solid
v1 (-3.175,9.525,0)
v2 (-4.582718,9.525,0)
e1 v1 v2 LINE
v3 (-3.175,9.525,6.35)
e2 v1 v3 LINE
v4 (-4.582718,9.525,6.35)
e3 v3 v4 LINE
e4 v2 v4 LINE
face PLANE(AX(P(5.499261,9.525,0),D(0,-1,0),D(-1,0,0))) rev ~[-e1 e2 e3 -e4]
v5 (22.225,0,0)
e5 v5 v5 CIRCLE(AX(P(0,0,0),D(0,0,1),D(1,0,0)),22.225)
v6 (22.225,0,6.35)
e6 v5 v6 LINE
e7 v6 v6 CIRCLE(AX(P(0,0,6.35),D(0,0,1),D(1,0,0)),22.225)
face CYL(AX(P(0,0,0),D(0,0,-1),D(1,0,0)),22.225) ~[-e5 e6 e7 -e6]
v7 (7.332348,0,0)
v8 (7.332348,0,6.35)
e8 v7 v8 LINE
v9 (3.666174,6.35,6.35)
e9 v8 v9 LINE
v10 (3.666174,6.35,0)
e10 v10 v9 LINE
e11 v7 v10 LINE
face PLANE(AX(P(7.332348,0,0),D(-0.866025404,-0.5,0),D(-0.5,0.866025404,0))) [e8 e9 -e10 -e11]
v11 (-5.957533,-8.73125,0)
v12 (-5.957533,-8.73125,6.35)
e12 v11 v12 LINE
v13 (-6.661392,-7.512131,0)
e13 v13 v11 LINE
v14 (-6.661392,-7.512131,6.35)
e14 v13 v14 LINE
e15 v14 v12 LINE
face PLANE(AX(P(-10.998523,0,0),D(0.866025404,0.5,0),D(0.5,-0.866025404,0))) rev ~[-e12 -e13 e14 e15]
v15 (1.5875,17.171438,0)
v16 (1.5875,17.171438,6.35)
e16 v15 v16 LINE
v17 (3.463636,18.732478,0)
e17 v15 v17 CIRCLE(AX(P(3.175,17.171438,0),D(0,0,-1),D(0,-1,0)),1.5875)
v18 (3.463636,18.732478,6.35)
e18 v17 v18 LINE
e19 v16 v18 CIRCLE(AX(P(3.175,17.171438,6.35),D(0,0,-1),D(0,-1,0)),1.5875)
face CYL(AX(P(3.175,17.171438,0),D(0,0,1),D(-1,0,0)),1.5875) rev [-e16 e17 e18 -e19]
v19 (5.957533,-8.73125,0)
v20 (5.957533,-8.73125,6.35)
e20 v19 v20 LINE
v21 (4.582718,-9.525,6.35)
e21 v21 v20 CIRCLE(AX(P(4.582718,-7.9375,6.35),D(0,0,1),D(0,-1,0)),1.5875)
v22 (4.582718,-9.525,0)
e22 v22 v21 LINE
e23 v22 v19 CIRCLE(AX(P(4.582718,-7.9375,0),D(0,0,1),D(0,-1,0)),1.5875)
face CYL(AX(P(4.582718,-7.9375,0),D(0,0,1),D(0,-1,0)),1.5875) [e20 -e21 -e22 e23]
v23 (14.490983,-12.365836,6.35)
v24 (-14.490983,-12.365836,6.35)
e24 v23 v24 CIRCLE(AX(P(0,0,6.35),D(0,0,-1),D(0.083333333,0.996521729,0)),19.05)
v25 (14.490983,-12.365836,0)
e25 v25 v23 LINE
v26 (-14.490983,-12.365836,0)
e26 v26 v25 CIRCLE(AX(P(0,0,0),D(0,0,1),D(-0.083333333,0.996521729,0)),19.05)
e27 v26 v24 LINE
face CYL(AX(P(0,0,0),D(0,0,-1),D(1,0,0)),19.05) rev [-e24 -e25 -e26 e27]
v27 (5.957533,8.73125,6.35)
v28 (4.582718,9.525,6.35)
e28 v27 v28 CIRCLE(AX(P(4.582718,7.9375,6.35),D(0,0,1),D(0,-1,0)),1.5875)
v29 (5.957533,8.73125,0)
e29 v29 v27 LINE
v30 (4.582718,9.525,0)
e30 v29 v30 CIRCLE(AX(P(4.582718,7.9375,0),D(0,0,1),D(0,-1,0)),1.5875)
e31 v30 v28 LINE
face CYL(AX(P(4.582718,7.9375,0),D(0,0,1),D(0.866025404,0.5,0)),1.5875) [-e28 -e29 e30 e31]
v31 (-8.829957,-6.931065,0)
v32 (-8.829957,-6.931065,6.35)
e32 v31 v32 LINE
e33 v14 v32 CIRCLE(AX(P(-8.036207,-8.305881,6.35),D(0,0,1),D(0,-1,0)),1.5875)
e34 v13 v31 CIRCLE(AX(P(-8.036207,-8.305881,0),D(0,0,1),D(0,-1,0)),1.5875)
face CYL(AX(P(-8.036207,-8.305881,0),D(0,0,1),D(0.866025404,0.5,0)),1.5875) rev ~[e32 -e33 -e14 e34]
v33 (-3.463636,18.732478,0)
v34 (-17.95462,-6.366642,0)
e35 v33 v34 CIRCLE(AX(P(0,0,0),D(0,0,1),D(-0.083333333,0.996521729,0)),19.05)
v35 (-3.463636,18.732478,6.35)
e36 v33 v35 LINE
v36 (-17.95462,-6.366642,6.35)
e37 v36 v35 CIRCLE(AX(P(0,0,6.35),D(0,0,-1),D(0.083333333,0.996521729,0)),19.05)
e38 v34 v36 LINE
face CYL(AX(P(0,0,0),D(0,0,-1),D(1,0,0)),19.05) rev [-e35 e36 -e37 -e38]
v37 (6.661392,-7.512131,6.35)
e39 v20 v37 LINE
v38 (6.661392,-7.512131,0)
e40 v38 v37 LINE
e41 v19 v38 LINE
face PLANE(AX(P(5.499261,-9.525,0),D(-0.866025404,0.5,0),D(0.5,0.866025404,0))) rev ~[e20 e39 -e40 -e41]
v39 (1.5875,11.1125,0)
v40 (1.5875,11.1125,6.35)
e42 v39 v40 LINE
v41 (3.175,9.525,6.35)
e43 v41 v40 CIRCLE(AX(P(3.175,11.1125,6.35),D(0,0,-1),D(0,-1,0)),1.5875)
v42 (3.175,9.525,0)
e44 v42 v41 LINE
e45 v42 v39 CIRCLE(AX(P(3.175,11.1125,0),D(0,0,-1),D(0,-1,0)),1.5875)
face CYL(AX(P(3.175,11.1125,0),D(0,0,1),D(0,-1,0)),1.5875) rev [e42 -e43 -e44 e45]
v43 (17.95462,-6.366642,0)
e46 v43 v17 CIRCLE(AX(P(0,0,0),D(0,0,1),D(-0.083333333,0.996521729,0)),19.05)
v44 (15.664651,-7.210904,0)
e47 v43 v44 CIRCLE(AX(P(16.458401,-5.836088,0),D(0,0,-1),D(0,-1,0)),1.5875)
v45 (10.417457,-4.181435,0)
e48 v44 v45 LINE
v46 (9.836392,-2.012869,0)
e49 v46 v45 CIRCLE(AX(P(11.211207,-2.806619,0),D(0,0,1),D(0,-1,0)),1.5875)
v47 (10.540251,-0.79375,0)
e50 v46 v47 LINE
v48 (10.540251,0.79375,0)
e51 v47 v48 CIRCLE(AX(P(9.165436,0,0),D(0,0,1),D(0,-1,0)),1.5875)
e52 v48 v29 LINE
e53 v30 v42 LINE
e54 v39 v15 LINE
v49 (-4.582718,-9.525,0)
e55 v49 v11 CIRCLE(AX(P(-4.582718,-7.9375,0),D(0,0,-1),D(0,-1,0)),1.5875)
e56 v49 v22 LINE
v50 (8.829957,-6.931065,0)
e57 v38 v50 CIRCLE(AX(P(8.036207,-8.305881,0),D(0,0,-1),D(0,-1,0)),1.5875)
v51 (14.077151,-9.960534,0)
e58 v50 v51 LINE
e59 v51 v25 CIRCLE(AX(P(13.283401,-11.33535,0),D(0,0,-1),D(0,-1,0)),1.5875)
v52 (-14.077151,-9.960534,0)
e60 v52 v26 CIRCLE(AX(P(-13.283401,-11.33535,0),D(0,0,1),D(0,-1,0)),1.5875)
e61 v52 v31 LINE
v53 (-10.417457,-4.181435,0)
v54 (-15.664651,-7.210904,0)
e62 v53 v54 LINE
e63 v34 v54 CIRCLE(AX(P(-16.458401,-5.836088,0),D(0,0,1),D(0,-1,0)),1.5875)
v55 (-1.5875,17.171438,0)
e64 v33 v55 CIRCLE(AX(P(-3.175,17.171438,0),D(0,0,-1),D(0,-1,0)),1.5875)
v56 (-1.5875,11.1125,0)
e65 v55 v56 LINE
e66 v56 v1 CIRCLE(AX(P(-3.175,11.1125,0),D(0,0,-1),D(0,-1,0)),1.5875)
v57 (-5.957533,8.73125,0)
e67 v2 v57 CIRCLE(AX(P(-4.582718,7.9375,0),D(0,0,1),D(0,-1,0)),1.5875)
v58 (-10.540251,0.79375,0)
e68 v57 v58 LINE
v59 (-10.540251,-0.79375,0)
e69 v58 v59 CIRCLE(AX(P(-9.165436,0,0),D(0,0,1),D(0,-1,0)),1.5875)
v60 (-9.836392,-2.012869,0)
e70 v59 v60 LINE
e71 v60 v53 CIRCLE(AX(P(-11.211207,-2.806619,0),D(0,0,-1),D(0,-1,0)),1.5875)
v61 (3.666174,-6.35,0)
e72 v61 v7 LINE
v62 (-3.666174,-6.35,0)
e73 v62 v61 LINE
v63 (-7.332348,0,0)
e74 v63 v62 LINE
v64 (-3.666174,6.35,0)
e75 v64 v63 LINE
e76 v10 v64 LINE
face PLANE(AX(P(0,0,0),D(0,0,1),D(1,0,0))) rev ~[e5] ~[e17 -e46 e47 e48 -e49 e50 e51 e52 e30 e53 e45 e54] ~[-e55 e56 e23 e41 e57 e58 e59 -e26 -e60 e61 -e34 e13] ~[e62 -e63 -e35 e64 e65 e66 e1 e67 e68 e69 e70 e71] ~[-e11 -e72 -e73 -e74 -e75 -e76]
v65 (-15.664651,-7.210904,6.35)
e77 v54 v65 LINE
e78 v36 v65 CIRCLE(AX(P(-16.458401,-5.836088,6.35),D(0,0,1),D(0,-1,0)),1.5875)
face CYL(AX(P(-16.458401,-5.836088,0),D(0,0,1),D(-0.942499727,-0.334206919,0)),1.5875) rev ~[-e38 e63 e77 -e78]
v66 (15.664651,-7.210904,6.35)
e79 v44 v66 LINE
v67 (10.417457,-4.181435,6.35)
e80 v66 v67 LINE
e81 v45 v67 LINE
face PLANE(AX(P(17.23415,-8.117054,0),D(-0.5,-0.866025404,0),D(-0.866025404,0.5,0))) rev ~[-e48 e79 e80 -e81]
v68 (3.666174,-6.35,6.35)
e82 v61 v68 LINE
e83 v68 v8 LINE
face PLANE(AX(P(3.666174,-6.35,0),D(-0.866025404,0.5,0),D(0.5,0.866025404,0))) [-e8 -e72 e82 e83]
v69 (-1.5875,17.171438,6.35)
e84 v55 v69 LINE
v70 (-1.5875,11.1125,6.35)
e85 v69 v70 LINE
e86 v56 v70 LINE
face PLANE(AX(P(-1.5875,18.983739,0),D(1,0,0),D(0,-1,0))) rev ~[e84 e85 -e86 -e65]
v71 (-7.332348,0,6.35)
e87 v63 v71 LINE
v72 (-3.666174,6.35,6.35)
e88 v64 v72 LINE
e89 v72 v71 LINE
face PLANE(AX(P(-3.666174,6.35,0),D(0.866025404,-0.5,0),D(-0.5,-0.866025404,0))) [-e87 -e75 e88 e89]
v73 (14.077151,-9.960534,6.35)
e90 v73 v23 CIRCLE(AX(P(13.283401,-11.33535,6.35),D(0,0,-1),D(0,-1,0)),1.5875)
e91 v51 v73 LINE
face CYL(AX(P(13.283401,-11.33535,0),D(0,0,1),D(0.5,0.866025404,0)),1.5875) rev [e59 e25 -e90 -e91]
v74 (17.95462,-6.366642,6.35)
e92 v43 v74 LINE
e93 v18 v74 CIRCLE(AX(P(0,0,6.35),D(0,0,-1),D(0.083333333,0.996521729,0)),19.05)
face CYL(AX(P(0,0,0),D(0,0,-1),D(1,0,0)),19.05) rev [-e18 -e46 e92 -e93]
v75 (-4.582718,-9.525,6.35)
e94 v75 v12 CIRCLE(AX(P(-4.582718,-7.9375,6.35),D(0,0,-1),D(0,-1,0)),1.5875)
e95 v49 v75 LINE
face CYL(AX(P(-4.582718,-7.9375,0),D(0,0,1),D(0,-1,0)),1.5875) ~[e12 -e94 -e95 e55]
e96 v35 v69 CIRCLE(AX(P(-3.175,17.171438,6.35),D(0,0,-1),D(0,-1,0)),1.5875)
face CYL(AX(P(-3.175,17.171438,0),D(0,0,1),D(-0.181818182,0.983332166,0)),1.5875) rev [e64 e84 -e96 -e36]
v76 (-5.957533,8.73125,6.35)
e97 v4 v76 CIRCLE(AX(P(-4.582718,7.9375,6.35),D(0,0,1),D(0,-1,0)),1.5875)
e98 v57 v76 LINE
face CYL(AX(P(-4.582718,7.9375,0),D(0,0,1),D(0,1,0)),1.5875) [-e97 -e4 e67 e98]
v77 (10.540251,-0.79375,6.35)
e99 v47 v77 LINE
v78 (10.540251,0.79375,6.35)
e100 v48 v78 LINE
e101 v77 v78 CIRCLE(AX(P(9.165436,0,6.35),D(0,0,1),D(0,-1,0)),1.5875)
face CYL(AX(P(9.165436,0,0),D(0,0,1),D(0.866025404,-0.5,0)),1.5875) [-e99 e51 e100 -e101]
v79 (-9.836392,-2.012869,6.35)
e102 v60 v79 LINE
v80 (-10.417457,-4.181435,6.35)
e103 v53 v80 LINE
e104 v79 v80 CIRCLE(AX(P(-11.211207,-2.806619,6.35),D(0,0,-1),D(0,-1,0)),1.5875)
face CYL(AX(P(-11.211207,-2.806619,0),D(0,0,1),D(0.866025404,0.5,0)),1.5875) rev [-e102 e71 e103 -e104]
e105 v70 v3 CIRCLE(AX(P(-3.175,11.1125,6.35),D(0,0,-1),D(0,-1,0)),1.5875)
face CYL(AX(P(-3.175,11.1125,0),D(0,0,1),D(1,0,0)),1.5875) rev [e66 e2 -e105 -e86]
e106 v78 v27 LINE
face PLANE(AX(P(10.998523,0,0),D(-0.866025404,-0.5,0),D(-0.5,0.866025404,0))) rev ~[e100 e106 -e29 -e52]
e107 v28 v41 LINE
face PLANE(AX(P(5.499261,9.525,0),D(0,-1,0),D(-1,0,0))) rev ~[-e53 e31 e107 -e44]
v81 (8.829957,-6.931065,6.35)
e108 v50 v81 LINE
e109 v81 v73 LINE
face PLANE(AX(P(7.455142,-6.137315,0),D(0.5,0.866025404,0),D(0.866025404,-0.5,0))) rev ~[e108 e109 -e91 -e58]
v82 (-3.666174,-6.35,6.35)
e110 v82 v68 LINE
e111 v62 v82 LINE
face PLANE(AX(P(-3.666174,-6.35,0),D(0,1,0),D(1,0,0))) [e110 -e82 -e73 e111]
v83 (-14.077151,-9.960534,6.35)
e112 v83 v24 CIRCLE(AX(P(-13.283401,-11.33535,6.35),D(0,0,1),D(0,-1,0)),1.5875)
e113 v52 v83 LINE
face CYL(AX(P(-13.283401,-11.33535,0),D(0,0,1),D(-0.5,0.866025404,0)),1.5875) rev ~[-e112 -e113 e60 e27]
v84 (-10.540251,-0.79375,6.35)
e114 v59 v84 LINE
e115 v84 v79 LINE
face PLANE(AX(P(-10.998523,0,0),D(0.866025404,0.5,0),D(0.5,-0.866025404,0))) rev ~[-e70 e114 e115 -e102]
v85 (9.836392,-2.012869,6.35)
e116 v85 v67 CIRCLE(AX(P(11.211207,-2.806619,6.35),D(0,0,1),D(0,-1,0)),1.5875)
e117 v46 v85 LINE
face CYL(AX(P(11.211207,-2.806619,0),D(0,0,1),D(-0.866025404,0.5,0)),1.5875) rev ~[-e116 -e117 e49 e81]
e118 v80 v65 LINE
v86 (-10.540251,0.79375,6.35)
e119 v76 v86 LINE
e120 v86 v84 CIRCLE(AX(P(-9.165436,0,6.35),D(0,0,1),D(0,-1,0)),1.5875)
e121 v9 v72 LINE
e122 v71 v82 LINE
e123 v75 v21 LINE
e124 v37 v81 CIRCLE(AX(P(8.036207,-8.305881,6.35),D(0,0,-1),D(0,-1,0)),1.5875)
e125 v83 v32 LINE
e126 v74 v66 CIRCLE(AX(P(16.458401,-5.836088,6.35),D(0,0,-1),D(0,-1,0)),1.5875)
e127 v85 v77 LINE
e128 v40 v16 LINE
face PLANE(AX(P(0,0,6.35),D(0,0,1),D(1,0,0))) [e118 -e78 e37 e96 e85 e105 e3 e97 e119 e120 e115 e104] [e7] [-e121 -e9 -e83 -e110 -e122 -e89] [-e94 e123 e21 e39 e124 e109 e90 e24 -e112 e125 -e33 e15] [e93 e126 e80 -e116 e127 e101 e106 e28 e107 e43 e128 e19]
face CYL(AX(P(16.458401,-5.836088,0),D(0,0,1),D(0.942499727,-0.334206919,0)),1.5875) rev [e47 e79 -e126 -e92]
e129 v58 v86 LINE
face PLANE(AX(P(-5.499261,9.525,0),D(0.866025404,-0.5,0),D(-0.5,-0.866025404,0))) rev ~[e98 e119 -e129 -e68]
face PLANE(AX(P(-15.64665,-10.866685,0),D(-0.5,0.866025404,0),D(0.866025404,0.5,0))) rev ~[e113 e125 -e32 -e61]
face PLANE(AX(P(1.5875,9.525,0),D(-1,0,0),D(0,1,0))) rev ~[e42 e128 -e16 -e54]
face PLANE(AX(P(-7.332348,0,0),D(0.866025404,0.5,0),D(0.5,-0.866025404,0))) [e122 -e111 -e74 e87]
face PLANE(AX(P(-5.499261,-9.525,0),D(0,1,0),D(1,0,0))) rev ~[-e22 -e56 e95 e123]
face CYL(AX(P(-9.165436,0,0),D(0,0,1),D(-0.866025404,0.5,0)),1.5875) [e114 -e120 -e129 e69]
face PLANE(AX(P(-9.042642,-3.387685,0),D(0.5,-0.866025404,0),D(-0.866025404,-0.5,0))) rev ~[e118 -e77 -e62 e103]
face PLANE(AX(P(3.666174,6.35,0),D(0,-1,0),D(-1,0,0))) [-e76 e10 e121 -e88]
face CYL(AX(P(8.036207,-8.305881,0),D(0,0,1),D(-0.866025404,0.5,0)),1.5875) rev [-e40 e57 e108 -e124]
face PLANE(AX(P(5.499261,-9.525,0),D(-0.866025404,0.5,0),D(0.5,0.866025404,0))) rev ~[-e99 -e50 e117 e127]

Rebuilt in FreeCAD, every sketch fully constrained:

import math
import FreeCAD as App
import Part
import Sketcher

V = App.Vector
Q = App.Units.Quantity


def edges_at(feature, points):
    """Names of the edges that pass closest to the given points."""
    edges = feature.Shape.Edges
    near = lambda p: min(range(len(edges)), key=lambda i: edges[i].distToShape(Part.Vertex(*p))[0])
    return sorted({f"Edge{near(p) + 1}" for p in points})


def add_polygon(sketch, points):
    """Adds a closed chain of lines whose ends are joined by coincident constraints."""
    first, n = sketch.GeometryCount, len(points)
    for a, b in zip(points, points[1:] + points[:1]):
        sketch.addGeometry(Part.LineSegment(App.Vector(*a, 0), App.Vector(*b, 0)), False)
    for i in range(n):
        sketch.addConstraint(Sketcher.Constraint("Coincident", first + i, 2, first + (i + 1) % n, 1))

doc = App.newDocument("Part")
body = doc.addObject("PartDesign::Body", "Body")

sketch1 = body.newObject("Sketcher::SketchObject", "Sketch")
sketch1.AttachmentSupport = (doc.getObject("XY_Plane"), [""])
sketch1.MapMode = "FlatFace"
sketch1.addGeometry(Part.Circle(V(0, 0, 0), V(0, 0, 1), 22), False)
sketch1.addGeometry(Part.Circle(V(0, 0, 0), V(0, 0, 1), 19), False)
sketch1.addConstraint(Sketcher.Constraint("Coincident", 0, 3, -1, 1))
sketch1.addConstraint(Sketcher.Constraint("Coincident", 1, 3, -1, 1))
sketch1.addConstraint(Sketcher.Constraint("Diameter", 1, Q("1.5 in")))
sketch1.addConstraint(Sketcher.Constraint("Diameter", 0, Q("1.75 in")))
pad1 = body.newObject("PartDesign::Pad", "Pad")
pad1.Profile = sketch1
pad1.Length = Q("0.25 in")
body2 = doc.addObject("PartDesign::Body", "Body001")

sketch2 = body2.newObject("Sketcher::SketchObject", "Sketch001")
sketch2.AttachmentSupport = (doc.getObject("XY_Plane001"), [""])
sketch2.MapMode = "FlatFace"
add_polygon(sketch2, [(-5, -10), (5, -10), (11, 0), (5, 10), (-5, 10), (-11, 0)])
add_polygon(sketch2, [(7, 0), (4, -6), (-4, -6), (-7, 0), (-4, 6), (4, 6)])
sketch2.addConstraint(Sketcher.Constraint("Horizontal", 0))
sketch2.addConstraint(Sketcher.Constraint("Horizontal", 3))
sketch2.addConstraint(Sketcher.Constraint("Horizontal", 7))
sketch2.addConstraint(Sketcher.Constraint("Horizontal", 10))
sketch2.addConstraint(Sketcher.Constraint("Symmetric", 0, 2, 3, 2, -1, 1))
sketch2.addConstraint(Sketcher.Constraint("Symmetric", 1, 2, 4, 2, -1, 1))
sketch2.addConstraint(Sketcher.Constraint("Symmetric", 6, 2, 9, 2, -1, 1))
sketch2.addConstraint(Sketcher.Constraint("Symmetric", 8, 2, 11, 2, -1, 1))
sketch2.addConstraint(Sketcher.Constraint("PointOnObject", 1, 2, -1))
sketch2.addConstraint(Sketcher.Constraint("PointOnObject", 8, 2, -1))
sketch2.addConstraint(Sketcher.Constraint("Parallel", 2, 5))
sketch2.addConstraint(Sketcher.Constraint("Parallel", 4, 6))
sketch2.addConstraint(Sketcher.Constraint("Parallel", 5, 8))
sketch2.addConstraint(Sketcher.Constraint("Parallel", 8, 11))
sketch2.addConstraint(Sketcher.Constraint("Vertical", 0, 2, 2, 2))
sketch2.addConstraint(Sketcher.Constraint("Angle", 1, Q("60 deg")))
sketch2.addConstraint(Sketcher.Constraint("DistanceY", 7, 2, 9, 2, Q("0.5 in")))
sketch2.addConstraint(Sketcher.Constraint("DistanceY", 0, 2, 2, 2, Q("0.75 in")))
sketch2.addConstraint(Sketcher.Constraint("DistanceX", 7, 2, 7, 1, Q("7.332348 mm")))
sketch2.addConstraint(Sketcher.Constraint("DistanceX", 0, 1, 0, 2, Q("10.998523 mm")))
pad2 = body2.newObject("PartDesign::Pad", "Pad001")
pad2.Profile = sketch2
pad2.Length = Q("0.25 in")
body.AllowCompound = True
doc.recompute()

boolean = body.newObject("PartDesign::Boolean", "Boolean")
boolean.Type = "Fuse"
boolean.addObjects([body2])

sketch3 = body.newObject("Sketcher::SketchObject", "Sketch002")
sketch3.AttachmentSupport = (doc.getObject("XY_Plane"), [""])
sketch3.MapMode = "FlatFace"
sketch3.addGeometry(Part.LineSegment(V(-1.6, 19, 0), V(-1.6, 9.5, 0)), False)
sketch3.addGeometry(Part.LineSegment(V(-1.6, 9.5, 0), V(1.6, 9.5, 0)), False)
sketch3.addGeometry(Part.LineSegment(V(1.6, 9.5, 0), V(1.6, 19, 0)), False)
sketch3.addGeometry(Part.ArcOfCircle(Part.Circle(V(0, 0, 0), V(0, 0, 1), 19.1), math.radians(85.22), math.radians(94.78)), False)
sketch3.addConstraint(Sketcher.Constraint("Coincident", 0, 2, 1, 1))
sketch3.addConstraint(Sketcher.Constraint("Coincident", 1, 2, 2, 1))
sketch3.addConstraint(Sketcher.Constraint("Coincident", 2, 2, 3, 1))
sketch3.addConstraint(Sketcher.Constraint("Coincident", 3, 2, 0, 1))
sketch3.addConstraint(Sketcher.Constraint("Vertical", 0))
sketch3.addConstraint(Sketcher.Constraint("Horizontal", 1))
sketch3.addConstraint(Sketcher.Constraint("Vertical", 2))
sketch3.addConstraint(Sketcher.Constraint("Coincident", 3, 3, -1, 1))
sketch3.addConstraint(Sketcher.Constraint("Horizontal", 2, 2, 3, 2))
sketch3.addConstraint(Sketcher.Constraint("Radius", 3, Q("0.75 in")))
sketch3.addConstraint(Sketcher.Constraint("DistanceX", 1, 1, 1, 2, Q("0.125 in")))
sketch3.addConstraint(Sketcher.Constraint("DistanceY", -1, 1, 0, 2, Q("0.375 in")))
pad3 = body.newObject("PartDesign::Pad", "Pad002")
pad3.Profile = sketch3
pad3.Length = Q("0.25 in")
doc.recompute()

polarpattern = body.newObject("PartDesign::PolarPattern", "PolarPattern")
polarpattern.Originals = [pad3]
polarpattern.Axis = (doc.getObject("Z_Axis"), [""])
polarpattern.Angle = 360
polarpattern.Occurrences = 3
body.Tip = polarpattern
doc.recompute()

fillet = body.newObject("PartDesign::Fillet", "Fillet")
fillet.Base = (polarpattern, edges_at(polarpattern, [
    (-5.499, -9.525, 3.175),
    (-10.999, 0, 3.175),
    (-5.499, 9.525, 3.175),
    (5.499, 9.525, 3.175),
    (10.999, 0, 3.175),
    (5.499, -9.525, 3.175),
    (1.587, 18.984, 3.175),
    (-1.587, 18.984, 3.175),
    (-1.587, 9.525, 3.175),
    (1.587, 9.525, 3.175),
    (-17.234, -8.117, 3.175),
    (-15.647, -10.867, 3.175),
    (-7.455, -6.137, 3.175),
    (-9.043, -3.388, 3.175),
    (15.647, -10.867, 3.175),
    (17.234, -8.117, 3.175),
    (9.043, -3.388, 3.175),
    (7.455, -6.137, 3.175),
]))
fillet.Radius = Q("0.0625 in")

doc.recompute()
